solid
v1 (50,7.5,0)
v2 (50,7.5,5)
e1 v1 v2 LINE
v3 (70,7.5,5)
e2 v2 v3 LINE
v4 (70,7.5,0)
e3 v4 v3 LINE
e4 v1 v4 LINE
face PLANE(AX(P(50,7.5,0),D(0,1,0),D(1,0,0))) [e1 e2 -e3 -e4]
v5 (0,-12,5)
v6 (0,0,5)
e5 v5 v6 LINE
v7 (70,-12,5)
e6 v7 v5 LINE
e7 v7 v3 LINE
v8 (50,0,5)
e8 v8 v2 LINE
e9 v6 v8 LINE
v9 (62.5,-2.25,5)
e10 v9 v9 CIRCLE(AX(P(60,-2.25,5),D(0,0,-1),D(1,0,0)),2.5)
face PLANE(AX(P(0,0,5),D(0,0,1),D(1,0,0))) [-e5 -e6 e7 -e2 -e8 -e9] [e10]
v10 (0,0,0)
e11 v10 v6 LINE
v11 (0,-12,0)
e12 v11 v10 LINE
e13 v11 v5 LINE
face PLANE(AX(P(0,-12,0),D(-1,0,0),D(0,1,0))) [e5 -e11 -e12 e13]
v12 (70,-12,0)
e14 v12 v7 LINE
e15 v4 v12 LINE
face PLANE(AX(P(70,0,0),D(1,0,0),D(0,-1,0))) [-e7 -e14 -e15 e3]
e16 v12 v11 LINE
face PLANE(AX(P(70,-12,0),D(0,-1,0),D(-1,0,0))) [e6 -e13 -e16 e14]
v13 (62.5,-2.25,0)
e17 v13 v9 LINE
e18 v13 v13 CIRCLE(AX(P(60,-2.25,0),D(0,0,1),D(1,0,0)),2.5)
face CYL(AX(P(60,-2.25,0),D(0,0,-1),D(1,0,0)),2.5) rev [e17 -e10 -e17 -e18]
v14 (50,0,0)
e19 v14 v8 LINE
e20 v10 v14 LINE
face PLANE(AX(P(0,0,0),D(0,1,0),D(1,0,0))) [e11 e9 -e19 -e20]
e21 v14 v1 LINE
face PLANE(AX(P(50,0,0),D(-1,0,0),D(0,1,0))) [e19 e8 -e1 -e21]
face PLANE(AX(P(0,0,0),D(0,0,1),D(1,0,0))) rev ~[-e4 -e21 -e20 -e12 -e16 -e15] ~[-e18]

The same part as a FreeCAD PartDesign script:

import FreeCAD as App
import Part
import Sketcher

V = App.Vector
Q = App.Units.Quantity

doc = App.newDocument("Part")
body = doc.addObject("PartDesign::Body", "Body")

# Sketch on XY plane
sketch1 = doc.addObject("Sketcher::SketchObject", "Sketch")
body.addObject(sketch1)
sketch1.AttachmentSupport = (doc.XY_Plane, [""])
sketch1.MapMode = "FlatFace"
sketch1.addGeometry([
    Part.LineSegment(V(50, 0, 0), V(0, 0, 0)),  # 0
    Part.LineSegment(V(0, 0, 0), V(0, -12, 0)),  # 1
    Part.LineSegment(V(0, -12, 0), V(70, -12, 0)),  # 2
    Part.LineSegment(V(70, -12, 0), V(70, 7.5, 0)),  # 3
    Part.LineSegment(V(70, 7.5, 0), V(50, 7.5, 0)),  # 4
    Part.LineSegment(V(50, 7.5, 0), V(50, 0, 0)),  # 5
    Part.Circle(V(60, -2.2, 0), V(0, 0, 1), 2.5),  # 6
], False)
sketch1.addConstraint([
    Sketcher.Constraint("Coincident", 0, 2, 1, 1),
    Sketcher.Constraint("Coincident", 1, 2, 2, 1),
    Sketcher.Constraint("Coincident", 2, 2, 3, 1),
    Sketcher.Constraint("Coincident", 3, 2, 4, 1),
    Sketcher.Constraint("Coincident", 4, 2, 5, 1),
    Sketcher.Constraint("Coincident", 5, 2, 0, 1),
    Sketcher.Constraint("Horizontal", 0),
    Sketcher.Constraint("Vertical", 1),
    Sketcher.Constraint("Horizontal", 2),
    Sketcher.Constraint("Vertical", 3),
    Sketcher.Constraint("Horizontal", 4),
    Sketcher.Constraint("Vertical", 5),
    Sketcher.Constraint("Coincident", 0, 2, -1, 1),
    Sketcher.Constraint("Diameter", 6, Q("5 mm")),
    Sketcher.Constraint("DistanceX", 2, 1, 2, 2, Q("70 mm")),
    Sketcher.Constraint("DistanceX", 4, 2, 4, 1, Q("20 mm")),
    Sketcher.Constraint("DistanceY", 1, 2, 1, 1, Q("12 mm")),
    Sketcher.Constraint("DistanceY", 5, 2, 5, 1, Q("7.5 mm")),
    Sketcher.Constraint("DistanceX", 6, 3, 2, 2, Q("10 mm")),
    Sketcher.Constraint("DistanceY", 1, 2, 6, 3, Q("9.75 mm")),
])
pad1 = doc.addObject("PartDesign::Pad", "Pad")
body.addObject(pad1)
pad1.Profile = sketch1
pad1.Length = 5

doc.recompute()
